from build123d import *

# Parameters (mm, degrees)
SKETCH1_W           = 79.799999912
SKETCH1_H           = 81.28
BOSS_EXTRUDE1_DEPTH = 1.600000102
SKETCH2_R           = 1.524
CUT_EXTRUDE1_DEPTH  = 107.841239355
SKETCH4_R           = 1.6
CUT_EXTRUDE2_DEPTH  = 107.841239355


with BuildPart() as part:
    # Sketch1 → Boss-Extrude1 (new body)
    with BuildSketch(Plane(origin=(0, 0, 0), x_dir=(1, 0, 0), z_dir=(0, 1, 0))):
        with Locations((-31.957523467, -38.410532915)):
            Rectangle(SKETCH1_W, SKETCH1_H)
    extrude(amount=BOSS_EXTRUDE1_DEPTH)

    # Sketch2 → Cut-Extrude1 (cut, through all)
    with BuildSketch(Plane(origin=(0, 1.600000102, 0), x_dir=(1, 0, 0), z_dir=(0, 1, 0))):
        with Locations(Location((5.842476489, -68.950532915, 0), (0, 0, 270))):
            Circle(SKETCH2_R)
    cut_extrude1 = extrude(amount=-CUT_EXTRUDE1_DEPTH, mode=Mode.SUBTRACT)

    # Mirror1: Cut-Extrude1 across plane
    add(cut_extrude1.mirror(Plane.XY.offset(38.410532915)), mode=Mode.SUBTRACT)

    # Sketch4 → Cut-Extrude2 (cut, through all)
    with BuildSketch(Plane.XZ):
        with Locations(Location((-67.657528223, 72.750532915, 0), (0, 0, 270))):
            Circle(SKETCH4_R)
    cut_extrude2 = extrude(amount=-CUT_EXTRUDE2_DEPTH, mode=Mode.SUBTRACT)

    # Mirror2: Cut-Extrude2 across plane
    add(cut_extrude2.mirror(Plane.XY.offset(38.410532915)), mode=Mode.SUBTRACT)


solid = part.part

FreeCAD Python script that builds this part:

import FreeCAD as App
import Part
import Sketcher
from FreeCAD import Vector
Q = App.Units.Quantity


def add_polygon(sketch, points):
    """Adds a closed chain of lines whose ends are joined by coincident constraints."""
    first, n = sketch.GeometryCount, len(points)
    for a, b in zip(points, points[1:] + points[:1]):
        sketch.addGeometry(Part.LineSegment(App.Vector(*a, 0), App.Vector(*b, 0)), False)
    for i in range(n):
        sketch.addConstraint(Sketcher.Constraint("Coincident", first + i, 2, first + (i + 1) % n, 1))

doc = App.newDocument("Part")
body = doc.addObject("PartDesign::Body", "Body")

# Sketch on XZ plane
sketch1 = body.newObject("Sketcher::SketchObject", "Sketch")
sketch1.AttachmentSupport = (doc.getObject("XZ_Plane"), [""])
sketch1.MapMode = "FlatFace"
add_polygon(sketch1, [(-71.857523, -2.229467), (-71.857523, 79.050533), (7.942476, 79.050533), (7.942476, -2.229467)])  # lines 0-3
sketch1.addConstraint(Sketcher.Constraint("Vertical", 0))
sketch1.addConstraint(Sketcher.Constraint("Horizontal", 1))
sketch1.addConstraint(Sketcher.Constraint("Vertical", 2))
sketch1.addConstraint(Sketcher.Constraint("Horizontal", 3))
sketch1.addConstraint(Sketcher.Constraint("DistanceX", 1, 1, 1, 2, Q("79.8 mm")))
sketch1.addConstraint(Sketcher.Constraint("DistanceY", 0, 1, 0, 2, Q("81.28 mm")))
sketch1.addConstraint(Sketcher.Constraint("DistanceX", 0, 2, -1, 1, Q("71.857523 mm")))
sketch1.addConstraint(Sketcher.Constraint("DistanceY", -1, 1, 0, 2, Q("79.050533 mm")))
pad1 = body.newObject("PartDesign::Pad", "Pad")
pad1.Profile = sketch1
pad1.Length = 1.6
pad1.Reversed = True

# Sketch on XZ plane
sketch2 = body.newObject("Sketcher::SketchObject", "Sketch001")
sketch2.AttachmentSupport = (doc.getObject("XZ_Plane"), [""])
sketch2.MapMode = "FlatFace"
sketch2.AttachmentOffset = App.Placement(Vector(0, 0, -1.6), App.Rotation())
sketch2.addGeometry(Part.Circle(Vector(5.842476, 68.950533, 0), Vector(0, 0, 1), 1.524), False)
sketch2.addConstraint(Sketcher.Constraint("Diameter", 0, Q("3.048 mm")))
sketch2.addConstraint(Sketcher.Constraint("DistanceX", -1, 1, 0, 3, Q("5.842476 mm")))
sketch2.addConstraint(Sketcher.Constraint("DistanceY", -1, 1, 0, 3, Q("68.950533 mm")))
pocket1 = body.newObject("PartDesign::Pocket", "Pocket")
pocket1.Profile = sketch2
pocket1.Type = "ThroughAll"
pocket1.Reversed = True
doc.recompute()

datumplane = body.newObject("PartDesign::Plane", "DatumPlane")
datumplane.AttachmentSupport = (doc.getObject("XY_Plane"), [""])
datumplane.MapMode = "FlatFace"
datumplane.AttachmentOffset = App.Placement(Vector(0, 0, 38.410533), App.Rotation())
mirrored = body.newObject("PartDesign::Mirrored", "Mirrored")
mirrored.Originals = [pocket1]
mirrored.MirrorPlane = (datumplane, [""])
body.Tip = mirrored

# Sketch on XZ plane
sketch3 = body.newObject("Sketcher::SketchObject", "Sketch002")
sketch3.AttachmentSupport = (doc.getObject("XZ_Plane"), [""])
sketch3.MapMode = "FlatFace"
sketch3.addGeometry(Part.Circle(Vector(-67.657528, 72.750533, 0), Vector(0, 0, 1), 1.6), False)
sketch3.addConstraint(Sketcher.Constraint("Diameter", 0, Q("3.2 mm")))
sketch3.addConstraint(Sketcher.Constraint("DistanceX", 0, 3, -1, 1, Q("67.657528 mm")))
sketch3.addConstraint(Sketcher.Constraint("DistanceY", -1, 1, 0, 3, Q("72.750533 mm")))
pocket2 = body.newObject("PartDesign::Pocket", "Pocket001")
pocket2.Profile = sketch3
pocket2.Type = "ThroughAll"
doc.recompute()

datumplane2 = body.newObject("PartDesign::Plane", "DatumPlane001")
datumplane2.AttachmentSupport = (doc.getObject("XY_Plane"), [""])
datumplane2.MapMode = "FlatFace"
datumplane2.AttachmentOffset = App.Placement(Vector(0, 0, 38.410533), App.Rotation())
mirrored2 = body.newObject("PartDesign::Mirrored", "Mirrored001")
mirrored2.Originals = [pocket2]
mirrored2.MirrorPlane = (datumplane2, [""])
body.Tip = mirrored2

doc.recompute()
